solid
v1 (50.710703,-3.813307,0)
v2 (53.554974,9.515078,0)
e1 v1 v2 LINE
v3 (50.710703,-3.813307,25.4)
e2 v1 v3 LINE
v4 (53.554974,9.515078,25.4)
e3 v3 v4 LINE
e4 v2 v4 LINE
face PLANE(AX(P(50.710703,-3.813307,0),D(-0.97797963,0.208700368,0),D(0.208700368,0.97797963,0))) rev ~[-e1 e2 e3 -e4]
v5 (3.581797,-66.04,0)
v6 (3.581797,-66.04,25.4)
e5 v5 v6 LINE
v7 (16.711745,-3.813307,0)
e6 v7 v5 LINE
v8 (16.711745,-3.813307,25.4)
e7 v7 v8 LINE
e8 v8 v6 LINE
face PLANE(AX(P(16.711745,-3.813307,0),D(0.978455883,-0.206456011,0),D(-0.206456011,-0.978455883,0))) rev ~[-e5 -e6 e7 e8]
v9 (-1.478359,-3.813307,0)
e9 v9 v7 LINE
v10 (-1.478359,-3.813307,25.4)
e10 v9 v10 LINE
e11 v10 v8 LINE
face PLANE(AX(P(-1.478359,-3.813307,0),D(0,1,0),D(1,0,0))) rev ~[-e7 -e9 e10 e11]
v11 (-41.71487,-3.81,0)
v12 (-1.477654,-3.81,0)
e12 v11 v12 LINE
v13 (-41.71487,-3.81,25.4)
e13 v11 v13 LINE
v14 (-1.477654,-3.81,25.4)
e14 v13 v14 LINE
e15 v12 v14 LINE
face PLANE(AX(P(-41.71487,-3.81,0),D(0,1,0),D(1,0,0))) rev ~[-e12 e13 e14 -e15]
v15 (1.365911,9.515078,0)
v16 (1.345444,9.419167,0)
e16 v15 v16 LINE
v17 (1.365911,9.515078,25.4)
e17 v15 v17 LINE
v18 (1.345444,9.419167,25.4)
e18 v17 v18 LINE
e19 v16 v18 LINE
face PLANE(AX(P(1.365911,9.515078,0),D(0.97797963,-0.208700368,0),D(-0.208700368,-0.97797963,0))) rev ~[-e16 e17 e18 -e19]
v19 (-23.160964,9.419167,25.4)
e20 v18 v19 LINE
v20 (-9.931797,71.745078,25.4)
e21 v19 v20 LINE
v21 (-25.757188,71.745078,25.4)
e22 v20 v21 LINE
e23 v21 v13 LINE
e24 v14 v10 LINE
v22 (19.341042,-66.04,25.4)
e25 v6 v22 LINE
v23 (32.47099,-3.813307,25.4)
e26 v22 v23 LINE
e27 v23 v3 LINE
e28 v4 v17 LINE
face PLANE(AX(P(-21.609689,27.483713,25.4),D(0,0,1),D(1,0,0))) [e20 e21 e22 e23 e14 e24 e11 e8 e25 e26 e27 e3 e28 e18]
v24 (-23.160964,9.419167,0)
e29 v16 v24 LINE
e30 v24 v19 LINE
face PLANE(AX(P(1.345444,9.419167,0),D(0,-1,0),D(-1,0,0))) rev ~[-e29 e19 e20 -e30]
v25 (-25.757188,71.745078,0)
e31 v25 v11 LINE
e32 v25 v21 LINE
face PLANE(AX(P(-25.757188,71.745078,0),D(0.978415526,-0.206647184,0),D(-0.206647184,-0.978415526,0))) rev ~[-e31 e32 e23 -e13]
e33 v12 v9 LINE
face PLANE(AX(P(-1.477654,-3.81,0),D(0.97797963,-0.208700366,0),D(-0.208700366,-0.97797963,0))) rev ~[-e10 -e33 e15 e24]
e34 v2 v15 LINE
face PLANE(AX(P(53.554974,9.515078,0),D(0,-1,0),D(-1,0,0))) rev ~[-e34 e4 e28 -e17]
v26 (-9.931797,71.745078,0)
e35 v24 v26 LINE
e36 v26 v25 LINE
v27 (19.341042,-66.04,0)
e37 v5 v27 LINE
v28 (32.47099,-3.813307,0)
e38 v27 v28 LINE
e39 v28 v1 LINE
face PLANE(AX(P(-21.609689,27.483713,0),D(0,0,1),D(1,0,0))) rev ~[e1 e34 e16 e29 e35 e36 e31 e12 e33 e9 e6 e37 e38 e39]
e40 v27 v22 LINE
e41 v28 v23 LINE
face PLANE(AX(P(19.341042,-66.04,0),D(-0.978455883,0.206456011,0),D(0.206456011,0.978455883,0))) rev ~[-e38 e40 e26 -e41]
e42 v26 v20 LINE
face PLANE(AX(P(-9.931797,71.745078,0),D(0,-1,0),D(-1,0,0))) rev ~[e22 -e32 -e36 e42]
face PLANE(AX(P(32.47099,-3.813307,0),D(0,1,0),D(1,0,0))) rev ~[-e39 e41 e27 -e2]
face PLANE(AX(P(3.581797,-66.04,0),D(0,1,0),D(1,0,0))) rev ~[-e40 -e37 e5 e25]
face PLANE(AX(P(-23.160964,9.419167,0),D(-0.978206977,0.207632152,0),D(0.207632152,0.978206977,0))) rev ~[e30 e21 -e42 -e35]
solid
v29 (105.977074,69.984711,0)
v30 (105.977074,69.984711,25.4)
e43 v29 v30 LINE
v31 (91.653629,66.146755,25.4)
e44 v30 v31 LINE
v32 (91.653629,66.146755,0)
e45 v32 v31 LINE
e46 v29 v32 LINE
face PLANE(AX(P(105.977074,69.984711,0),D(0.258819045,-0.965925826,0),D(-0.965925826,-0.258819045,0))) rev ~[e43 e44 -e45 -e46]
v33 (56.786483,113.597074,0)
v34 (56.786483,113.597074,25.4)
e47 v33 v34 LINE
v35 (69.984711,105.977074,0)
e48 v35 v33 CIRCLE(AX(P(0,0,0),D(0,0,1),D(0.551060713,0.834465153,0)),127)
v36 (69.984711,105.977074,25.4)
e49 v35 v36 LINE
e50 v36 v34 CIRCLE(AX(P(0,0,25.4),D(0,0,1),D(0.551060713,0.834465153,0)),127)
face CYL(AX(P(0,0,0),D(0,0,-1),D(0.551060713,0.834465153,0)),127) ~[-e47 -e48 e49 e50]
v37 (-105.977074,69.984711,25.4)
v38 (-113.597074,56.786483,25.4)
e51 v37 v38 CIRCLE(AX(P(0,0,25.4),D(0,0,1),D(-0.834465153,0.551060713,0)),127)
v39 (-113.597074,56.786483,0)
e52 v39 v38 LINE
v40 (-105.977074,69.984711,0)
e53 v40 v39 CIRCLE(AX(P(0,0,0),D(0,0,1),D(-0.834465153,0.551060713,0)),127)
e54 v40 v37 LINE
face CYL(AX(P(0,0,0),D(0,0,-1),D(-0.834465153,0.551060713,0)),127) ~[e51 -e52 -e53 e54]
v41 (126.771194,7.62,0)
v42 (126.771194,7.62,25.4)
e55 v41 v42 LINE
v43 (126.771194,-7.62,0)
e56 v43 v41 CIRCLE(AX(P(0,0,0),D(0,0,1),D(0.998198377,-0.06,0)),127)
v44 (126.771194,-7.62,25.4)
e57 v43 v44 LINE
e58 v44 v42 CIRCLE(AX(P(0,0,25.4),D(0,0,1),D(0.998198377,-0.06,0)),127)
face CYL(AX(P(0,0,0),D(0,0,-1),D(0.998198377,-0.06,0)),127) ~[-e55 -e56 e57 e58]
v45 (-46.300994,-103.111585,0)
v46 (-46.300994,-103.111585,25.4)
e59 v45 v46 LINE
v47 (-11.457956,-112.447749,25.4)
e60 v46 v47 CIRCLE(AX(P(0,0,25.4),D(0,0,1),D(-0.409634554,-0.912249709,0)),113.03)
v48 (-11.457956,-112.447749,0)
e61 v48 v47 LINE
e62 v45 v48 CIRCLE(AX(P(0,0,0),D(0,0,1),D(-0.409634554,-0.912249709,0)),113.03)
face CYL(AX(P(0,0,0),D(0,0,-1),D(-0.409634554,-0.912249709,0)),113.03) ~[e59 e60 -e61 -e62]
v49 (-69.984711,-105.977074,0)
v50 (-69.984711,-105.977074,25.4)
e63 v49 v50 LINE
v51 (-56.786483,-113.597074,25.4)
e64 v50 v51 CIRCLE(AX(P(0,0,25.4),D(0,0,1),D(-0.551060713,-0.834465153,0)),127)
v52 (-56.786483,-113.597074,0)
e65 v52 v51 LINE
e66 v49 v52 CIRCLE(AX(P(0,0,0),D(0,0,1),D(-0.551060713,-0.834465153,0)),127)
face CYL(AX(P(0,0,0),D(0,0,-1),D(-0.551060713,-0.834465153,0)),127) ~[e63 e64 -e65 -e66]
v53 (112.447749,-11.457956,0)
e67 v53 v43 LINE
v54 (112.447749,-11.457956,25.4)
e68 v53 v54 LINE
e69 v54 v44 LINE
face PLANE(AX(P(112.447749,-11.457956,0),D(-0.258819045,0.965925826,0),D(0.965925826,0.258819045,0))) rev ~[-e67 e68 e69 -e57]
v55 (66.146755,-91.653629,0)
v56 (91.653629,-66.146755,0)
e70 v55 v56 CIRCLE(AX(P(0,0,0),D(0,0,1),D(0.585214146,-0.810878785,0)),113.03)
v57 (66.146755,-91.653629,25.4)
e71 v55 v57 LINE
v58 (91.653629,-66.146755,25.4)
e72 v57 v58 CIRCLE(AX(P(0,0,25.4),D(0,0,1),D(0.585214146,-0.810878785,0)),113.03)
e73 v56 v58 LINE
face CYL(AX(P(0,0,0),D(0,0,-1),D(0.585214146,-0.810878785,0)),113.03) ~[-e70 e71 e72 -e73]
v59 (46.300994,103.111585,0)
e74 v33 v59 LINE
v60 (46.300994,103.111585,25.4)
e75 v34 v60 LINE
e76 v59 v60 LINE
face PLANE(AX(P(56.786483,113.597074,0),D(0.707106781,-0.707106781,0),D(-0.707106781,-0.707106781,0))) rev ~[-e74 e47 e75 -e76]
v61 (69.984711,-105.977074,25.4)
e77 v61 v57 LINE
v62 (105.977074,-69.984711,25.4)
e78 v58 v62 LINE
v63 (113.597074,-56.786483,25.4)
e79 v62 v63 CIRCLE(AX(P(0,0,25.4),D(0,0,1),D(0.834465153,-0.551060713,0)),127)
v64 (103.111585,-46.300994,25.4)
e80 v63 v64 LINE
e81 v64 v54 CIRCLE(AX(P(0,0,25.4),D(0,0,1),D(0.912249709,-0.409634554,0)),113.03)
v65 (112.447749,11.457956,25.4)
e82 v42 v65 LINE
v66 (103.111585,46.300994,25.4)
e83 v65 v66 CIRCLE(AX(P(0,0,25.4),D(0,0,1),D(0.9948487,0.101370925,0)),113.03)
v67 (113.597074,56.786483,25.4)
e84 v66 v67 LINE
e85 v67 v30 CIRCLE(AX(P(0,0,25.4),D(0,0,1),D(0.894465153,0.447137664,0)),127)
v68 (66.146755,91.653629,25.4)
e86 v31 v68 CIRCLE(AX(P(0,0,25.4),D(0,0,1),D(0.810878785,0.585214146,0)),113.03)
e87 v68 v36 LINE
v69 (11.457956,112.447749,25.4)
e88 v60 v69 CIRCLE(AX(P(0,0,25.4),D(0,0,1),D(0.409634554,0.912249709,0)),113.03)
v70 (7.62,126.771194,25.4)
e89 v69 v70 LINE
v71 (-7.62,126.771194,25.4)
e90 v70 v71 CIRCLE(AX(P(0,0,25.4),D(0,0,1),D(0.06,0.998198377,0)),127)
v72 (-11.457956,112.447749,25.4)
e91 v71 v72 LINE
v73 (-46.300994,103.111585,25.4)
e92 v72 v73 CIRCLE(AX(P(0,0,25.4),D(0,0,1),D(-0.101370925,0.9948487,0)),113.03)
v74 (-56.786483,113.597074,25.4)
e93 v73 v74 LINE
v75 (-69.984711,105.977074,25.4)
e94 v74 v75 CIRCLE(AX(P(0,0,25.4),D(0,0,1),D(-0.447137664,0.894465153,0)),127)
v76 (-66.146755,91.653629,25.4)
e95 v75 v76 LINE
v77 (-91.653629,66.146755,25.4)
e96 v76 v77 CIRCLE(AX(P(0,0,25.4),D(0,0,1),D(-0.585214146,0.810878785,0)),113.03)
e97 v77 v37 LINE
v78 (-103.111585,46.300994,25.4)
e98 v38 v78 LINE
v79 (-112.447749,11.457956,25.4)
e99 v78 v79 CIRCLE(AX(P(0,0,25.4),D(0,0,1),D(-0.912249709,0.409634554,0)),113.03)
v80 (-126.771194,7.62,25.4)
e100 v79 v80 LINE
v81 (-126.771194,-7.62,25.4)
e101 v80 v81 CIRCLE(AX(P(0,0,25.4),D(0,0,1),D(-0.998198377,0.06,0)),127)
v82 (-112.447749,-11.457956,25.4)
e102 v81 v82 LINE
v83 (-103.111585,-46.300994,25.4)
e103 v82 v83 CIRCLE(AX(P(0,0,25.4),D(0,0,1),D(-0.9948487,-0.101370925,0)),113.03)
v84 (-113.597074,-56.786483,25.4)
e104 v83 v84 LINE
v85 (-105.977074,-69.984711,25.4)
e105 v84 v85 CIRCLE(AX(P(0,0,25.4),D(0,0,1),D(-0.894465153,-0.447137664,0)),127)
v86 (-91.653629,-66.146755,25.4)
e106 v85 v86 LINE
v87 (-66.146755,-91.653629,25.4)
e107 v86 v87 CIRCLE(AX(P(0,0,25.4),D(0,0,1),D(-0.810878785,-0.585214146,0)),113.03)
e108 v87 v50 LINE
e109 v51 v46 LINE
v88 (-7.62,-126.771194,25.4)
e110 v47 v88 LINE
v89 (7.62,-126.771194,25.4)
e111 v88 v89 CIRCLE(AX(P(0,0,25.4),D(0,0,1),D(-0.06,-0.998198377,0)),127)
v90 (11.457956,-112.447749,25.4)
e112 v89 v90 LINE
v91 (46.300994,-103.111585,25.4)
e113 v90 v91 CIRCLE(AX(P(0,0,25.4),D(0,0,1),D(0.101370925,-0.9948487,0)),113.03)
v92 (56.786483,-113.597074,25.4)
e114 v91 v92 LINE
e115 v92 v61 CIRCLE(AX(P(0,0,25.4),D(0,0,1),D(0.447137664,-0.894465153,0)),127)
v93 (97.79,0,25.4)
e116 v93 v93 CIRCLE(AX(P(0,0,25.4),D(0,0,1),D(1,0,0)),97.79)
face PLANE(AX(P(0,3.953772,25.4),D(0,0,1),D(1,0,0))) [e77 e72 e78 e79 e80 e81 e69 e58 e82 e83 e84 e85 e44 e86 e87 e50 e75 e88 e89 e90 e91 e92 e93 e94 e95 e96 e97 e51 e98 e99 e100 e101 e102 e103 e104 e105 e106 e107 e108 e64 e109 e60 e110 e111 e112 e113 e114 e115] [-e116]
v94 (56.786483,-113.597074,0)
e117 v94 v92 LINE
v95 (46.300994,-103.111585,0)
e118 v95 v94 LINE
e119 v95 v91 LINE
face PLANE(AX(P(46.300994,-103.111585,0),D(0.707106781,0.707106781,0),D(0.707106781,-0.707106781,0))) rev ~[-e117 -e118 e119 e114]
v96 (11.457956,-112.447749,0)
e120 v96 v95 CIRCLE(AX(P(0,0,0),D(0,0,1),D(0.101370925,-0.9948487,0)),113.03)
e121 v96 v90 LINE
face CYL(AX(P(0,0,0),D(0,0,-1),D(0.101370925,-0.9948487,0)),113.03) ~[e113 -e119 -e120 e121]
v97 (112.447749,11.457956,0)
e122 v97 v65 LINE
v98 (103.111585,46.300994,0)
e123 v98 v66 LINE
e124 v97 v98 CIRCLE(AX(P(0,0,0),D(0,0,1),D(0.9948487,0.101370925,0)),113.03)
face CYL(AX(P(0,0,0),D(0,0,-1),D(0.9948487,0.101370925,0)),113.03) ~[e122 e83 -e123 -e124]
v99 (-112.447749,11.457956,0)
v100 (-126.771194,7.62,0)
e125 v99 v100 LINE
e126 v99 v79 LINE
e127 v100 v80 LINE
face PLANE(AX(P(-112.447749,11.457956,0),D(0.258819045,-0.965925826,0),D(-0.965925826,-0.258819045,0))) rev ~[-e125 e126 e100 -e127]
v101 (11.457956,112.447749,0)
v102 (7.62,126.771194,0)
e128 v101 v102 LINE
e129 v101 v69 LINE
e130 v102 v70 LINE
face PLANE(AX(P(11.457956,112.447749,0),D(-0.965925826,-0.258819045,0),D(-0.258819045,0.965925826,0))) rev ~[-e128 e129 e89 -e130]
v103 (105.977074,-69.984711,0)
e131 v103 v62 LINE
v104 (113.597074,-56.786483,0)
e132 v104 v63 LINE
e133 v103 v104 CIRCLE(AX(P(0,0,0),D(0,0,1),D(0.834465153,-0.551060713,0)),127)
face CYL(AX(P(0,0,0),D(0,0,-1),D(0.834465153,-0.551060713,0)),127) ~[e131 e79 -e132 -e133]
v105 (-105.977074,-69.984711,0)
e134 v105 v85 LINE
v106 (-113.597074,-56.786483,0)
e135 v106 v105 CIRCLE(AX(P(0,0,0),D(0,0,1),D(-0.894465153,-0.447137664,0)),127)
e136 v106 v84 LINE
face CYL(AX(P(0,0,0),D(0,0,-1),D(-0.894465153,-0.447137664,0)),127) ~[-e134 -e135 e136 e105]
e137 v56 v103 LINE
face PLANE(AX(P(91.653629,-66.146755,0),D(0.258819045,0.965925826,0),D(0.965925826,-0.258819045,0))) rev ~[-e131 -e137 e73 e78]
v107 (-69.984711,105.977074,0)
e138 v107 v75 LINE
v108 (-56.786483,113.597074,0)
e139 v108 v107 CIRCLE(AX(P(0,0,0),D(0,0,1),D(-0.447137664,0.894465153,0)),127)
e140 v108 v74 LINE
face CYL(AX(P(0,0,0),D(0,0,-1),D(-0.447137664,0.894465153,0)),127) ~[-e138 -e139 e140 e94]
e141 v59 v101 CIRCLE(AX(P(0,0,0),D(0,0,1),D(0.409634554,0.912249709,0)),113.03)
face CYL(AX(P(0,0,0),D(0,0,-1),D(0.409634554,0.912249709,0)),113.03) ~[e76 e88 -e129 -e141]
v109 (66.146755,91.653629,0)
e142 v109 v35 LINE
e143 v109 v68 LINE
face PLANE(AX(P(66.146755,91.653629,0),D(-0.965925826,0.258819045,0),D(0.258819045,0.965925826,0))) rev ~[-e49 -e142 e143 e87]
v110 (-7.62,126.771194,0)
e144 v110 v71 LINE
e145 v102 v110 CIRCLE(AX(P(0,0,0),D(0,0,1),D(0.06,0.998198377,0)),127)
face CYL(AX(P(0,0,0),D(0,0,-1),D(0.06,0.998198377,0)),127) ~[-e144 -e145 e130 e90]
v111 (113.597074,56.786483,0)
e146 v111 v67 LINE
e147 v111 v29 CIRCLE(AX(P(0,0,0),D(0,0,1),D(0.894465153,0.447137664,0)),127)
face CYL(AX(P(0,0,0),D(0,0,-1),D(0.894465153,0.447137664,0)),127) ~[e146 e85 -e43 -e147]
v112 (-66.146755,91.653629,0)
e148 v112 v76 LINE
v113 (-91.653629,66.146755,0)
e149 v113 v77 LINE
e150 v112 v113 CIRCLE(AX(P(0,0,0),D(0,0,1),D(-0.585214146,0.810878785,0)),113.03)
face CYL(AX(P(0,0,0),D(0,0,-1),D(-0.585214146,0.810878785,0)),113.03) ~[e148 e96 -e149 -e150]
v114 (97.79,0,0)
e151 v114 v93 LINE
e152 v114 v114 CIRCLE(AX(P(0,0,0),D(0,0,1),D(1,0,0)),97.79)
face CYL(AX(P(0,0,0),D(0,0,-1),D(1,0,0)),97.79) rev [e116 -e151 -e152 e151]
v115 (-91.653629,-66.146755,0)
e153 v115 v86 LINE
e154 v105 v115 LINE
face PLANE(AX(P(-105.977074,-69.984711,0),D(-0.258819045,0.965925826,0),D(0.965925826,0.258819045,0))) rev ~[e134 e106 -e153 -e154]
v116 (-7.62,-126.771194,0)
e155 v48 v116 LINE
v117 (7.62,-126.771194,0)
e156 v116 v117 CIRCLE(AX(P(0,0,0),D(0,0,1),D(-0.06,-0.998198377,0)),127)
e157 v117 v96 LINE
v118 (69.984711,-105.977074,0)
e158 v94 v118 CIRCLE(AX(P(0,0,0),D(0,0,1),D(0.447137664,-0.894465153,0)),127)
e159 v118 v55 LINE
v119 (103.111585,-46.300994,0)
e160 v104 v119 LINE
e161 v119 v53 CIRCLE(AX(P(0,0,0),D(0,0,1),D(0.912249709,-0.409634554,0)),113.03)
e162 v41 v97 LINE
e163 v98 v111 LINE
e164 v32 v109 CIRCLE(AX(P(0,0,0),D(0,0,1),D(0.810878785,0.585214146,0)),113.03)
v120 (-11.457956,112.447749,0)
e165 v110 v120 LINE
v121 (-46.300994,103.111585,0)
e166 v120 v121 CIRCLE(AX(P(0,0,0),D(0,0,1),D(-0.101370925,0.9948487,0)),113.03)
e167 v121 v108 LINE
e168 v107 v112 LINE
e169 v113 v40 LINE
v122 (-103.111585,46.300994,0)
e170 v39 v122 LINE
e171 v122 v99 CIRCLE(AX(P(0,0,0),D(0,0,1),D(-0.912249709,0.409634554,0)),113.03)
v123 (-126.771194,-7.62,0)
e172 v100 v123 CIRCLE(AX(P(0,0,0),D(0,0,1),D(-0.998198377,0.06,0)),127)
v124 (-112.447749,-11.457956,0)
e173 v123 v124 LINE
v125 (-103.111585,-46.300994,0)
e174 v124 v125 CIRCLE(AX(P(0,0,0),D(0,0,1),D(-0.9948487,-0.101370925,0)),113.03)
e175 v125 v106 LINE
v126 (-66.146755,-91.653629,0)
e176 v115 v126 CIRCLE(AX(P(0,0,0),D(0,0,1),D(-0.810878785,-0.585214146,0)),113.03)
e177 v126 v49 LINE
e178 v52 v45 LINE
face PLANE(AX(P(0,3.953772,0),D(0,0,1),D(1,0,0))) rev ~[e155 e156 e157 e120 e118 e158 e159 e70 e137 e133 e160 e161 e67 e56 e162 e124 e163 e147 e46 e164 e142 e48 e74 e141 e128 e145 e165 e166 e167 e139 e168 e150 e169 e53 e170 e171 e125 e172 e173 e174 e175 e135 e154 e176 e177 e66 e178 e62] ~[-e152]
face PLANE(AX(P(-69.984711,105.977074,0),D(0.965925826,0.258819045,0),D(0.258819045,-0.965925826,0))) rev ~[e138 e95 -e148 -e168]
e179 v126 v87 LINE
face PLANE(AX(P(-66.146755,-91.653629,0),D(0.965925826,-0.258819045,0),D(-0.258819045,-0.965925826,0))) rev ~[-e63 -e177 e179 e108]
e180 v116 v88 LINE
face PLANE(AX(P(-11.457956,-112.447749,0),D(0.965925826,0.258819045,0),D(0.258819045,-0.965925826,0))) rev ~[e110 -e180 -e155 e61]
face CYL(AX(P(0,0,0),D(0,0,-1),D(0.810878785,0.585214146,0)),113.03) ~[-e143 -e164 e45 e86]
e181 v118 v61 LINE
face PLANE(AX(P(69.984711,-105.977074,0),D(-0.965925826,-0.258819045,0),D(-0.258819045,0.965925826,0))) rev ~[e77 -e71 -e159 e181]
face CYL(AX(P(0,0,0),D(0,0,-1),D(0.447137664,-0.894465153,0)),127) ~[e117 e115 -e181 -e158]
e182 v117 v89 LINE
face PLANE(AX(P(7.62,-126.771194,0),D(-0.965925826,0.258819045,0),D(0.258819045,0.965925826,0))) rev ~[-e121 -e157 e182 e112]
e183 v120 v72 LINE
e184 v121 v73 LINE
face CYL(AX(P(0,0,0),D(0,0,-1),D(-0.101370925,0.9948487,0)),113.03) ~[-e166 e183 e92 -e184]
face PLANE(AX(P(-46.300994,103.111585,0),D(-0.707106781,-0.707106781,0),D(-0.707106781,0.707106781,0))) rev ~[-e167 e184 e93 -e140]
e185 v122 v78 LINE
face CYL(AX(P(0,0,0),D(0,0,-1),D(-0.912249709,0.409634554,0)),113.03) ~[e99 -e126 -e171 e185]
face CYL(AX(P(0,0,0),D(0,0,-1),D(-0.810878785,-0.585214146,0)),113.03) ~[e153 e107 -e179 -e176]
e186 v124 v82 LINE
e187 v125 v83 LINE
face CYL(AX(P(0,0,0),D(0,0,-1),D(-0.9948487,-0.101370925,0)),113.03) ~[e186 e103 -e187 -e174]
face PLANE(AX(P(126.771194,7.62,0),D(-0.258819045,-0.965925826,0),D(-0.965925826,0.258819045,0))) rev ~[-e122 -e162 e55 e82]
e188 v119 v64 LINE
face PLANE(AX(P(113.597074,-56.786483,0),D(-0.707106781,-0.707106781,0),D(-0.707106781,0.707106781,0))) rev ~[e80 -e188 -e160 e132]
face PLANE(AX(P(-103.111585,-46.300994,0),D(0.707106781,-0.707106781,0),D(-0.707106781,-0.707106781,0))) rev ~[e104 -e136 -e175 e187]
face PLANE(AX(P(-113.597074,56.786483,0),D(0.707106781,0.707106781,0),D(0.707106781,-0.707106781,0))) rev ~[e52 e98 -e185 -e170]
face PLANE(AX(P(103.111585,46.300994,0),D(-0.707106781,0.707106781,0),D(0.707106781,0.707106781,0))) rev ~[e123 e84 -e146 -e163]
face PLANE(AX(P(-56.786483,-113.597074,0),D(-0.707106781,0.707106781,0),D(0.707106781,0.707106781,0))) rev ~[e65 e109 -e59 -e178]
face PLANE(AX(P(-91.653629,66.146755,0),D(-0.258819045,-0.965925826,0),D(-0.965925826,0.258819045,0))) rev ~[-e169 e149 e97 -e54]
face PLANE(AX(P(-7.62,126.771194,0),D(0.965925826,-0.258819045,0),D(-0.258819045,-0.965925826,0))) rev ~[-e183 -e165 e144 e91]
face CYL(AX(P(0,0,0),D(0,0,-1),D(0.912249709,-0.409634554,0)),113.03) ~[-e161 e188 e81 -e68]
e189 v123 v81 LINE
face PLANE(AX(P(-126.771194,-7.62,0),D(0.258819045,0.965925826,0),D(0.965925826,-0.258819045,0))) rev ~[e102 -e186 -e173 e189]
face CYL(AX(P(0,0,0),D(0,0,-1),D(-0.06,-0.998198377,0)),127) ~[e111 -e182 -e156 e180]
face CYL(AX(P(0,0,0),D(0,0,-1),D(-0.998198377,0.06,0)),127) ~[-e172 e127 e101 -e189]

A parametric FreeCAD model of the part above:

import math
import FreeCAD as App
import Part
import Sketcher
from FreeCAD import Vector
Q = App.Units.Quantity


def add_polygon(sketch, points):
    """Adds a closed chain of lines whose ends are joined by coincident constraints."""
    first, n = sketch.GeometryCount, len(points)
    for a, b in zip(points, points[1:] + points[:1]):
        sketch.addGeometry(Part.LineSegment(App.Vector(*a, 0), App.Vector(*b, 0)), False)
    for i in range(n):
        sketch.addConstraint(Sketcher.Constraint("Coincident", first + i, 2, first + (i + 1) % n, 1))

doc = App.newDocument("Part")
body = doc.addObject("PartDesign::Body", "Body")

# Sketch on XY plane
sketch1 = body.newObject("Sketcher::SketchObject", "Sketch")
sketch1.AttachmentSupport = (doc.getObject("XY_Plane"), [""])
sketch1.MapMode = "FlatFace"
sketch1.addGeometry(Part.LineSegment(Vector(11.457956, 112.447749, 0), Vector(7.62, 126.771194, 0)), False)
sketch1.addGeometry(Part.ArcOfCircle(Part.Circle(Vector(0, 0, 0), Vector(0, 0, 1), 127), math.radians(86.560187), math.radians(93.439813)), False)
sketch1.addGeometry(Part.LineSegment(Vector(-7.62, 126.771194, 0), Vector(-11.457956, 112.447749, 0)), False)
sketch1.addGeometry(Part.ArcOfCircle(Part.Circle(Vector(0, 0, 0), Vector(0, 0, 1), 113.03), math.radians(95.81812), math.radians(114.18188)), False)
sketch1.addGeometry(Part.LineSegment(Vector(-46.300994, 103.111585, 0), Vector(-56.786483, 113.597074, 0)), False)
sketch1.addGeometry(Part.ArcOfCircle(Part.Circle(Vector(0, 0, 0), Vector(0, 0, 1), 127), math.radians(116.560187), math.radians(123.439813)), False)
sketch1.addGeometry(Part.LineSegment(Vector(-69.984711, 105.977074, 0), Vector(-66.146755, 91.653629, 0)), False)
sketch1.addGeometry(Part.ArcOfCircle(Part.Circle(Vector(0, 0, 0), Vector(0, 0, 1), 113.03), math.radians(125.81812), math.radians(144.18188)), False)
sketch1.addGeometry(Part.LineSegment(Vector(-91.653629, 66.146755, 0), Vector(-105.977074, 69.984711, 0)), False)
sketch1.addGeometry(Part.ArcOfCircle(Part.Circle(Vector(0, 0, 0), Vector(0, 0, 1), 127), math.radians(146.560187), math.radians(153.439813)), False)
sketch1.addGeometry(Part.LineSegment(Vector(-113.597074, 56.786483, 0), Vector(-103.111585, 46.300994, 0)), False)
sketch1.addGeometry(Part.ArcOfCircle(Part.Circle(Vector(0, 0, 0), Vector(0, 0, 1), 113.03), math.radians(155.81812), math.radians(174.18188)), False)
sketch1.addGeometry(Part.LineSegment(Vector(-112.447749, 11.457956, 0), Vector(-126.771194, 7.62, 0)), False)
sketch1.addGeometry(Part.ArcOfCircle(Part.Circle(Vector(0, 0, 0), Vector(0, 0, 1), 127), math.radians(176.560187), math.radians(183.439813)), False)
sketch1.addGeometry(Part.LineSegment(Vector(-126.771194, -7.62, 0), Vector(-112.447749, -11.457956, 0)), False)
sketch1.addGeometry(Part.ArcOfCircle(Part.Circle(Vector(0, 0, 0), Vector(0, 0, 1), 113.03), math.radians(-174.18188), math.radians(-155.81812)), False)
sketch1.addGeometry(Part.LineSegment(Vector(-103.111585, -46.300994, 0), Vector(-113.597074, -56.786483, 0)), False)
sketch1.addGeometry(Part.ArcOfCircle(Part.Circle(Vector(0, 0, 0), Vector(0, 0, 1), 127), math.radians(-153.439813), math.radians(-146.560187)), False)
sketch1.addGeometry(Part.LineSegment(Vector(-105.977074, -69.984711, 0), Vector(-91.653629, -66.146755, 0)), False)
sketch1.addGeometry(Part.ArcOfCircle(Part.Circle(Vector(0, 0, 0), Vector(0, 0, 1), 113.03), math.radians(-144.18188), math.radians(-125.81812)), False)
sketch1.addGeometry(Part.LineSegment(Vector(-66.146755, -91.653629, 0), Vector(-69.984711, -105.977074, 0)), False)
sketch1.addGeometry(Part.ArcOfCircle(Part.Circle(Vector(0, 0, 0), Vector(0, 0, 1), 127), math.radians(-123.439813), math.radians(-116.560187)), False)
sketch1.addGeometry(Part.LineSegment(Vector(-56.786483, -113.597074, 0), Vector(-46.300994, -103.111585, 0)), False)
sketch1.addGeometry(Part.ArcOfCircle(Part.Circle(Vector(0, 0, 0), Vector(0, 0, 1), 113.03), math.radians(-114.18188), math.radians(-95.81812)), False)
sketch1.addGeometry(Part.LineSegment(Vector(-11.457956, -112.447749, 0), Vector(-7.62, -126.771194, 0)), False)
sketch1.addGeometry(Part.ArcOfCircle(Part.Circle(Vector(0, 0, 0), Vector(0, 0, 1), 127), math.radians(-93.439813), math.radians(-86.560187)), False)
sketch1.addGeometry(Part.LineSegment(Vector(7.62, -126.771194, 0), Vector(11.457956, -112.447749, 0)), False)
sketch1.addGeometry(Part.ArcOfCircle(Part.Circle(Vector(0, 0, 0), Vector(0, 0, 1), 113.03), math.radians(-84.18188), math.radians(-65.81812)), False)
sketch1.addGeometry(Part.LineSegment(Vector(46.300994, -103.111585, 0), Vector(56.786483, -113.597074, 0)), False)
sketch1.addGeometry(Part.ArcOfCircle(Part.Circle(Vector(0, 0, 0), Vector(0, 0, 1), 127), math.radians(-63.439813), math.radians(-56.560187)), False)
sketch1.addGeometry(Part.LineSegment(Vector(69.984711, -105.977074, 0), Vector(66.146755, -91.653629, 0)), False)
sketch1.addGeometry(Part.ArcOfCircle(Part.Circle(Vector(0, 0, 0), Vector(0, 0, 1), 113.03), math.radians(-54.18188), math.radians(-35.81812)), False)
sketch1.addGeometry(Part.LineSegment(Vector(91.653629, -66.146755, 0), Vector(105.977074, -69.984711, 0)), False)
sketch1.addGeometry(Part.ArcOfCircle(Part.Circle(Vector(0, 0, 0), Vector(0, 0, 1), 127), math.radians(-33.439813), math.radians(-26.560187)), False)
sketch1.addGeometry(Part.LineSegment(Vector(113.597074, -56.786483, 0), Vector(103.111585, -46.300994, 0)), False)
sketch1.addGeometry(Part.ArcOfCircle(Part.Circle(Vector(0, 0, 0), Vector(0, 0, 1), 113.03), math.radians(-24.18188), math.radians(-5.81812)), False)
sketch1.addGeometry(Part.LineSegment(Vector(112.447749, -11.457956, 0), Vector(126.771194, -7.62, 0)), False)
sketch1.addGeometry(Part.ArcOfCircle(Part.Circle(Vector(0, 0, 0), Vector(0, 0, 1), 127), math.radians(-3.439813), math.radians(3.439813)), False)
sketch1.addGeometry(Part.LineSegment(Vector(126.771194, 7.62, 0), Vector(112.447749, 11.457956, 0)), False)
sketch1.addGeometry(Part.ArcOfCircle(Part.Circle(Vector(0, 0, 0), Vector(0, 0, 1), 113.03), math.radians(5.81812), math.radians(24.18188)), False)
sketch1.addGeometry(Part.LineSegment(Vector(103.111585, 46.300994, 0), Vector(113.597074, 56.786483, 0)), False)
sketch1.addGeometry(Part.ArcOfCircle(Part.Circle(Vector(0, 0, 0), Vector(0, 0, 1), 127), math.radians(26.560187), math.radians(33.439813)), False)
sketch1.addGeometry(Part.LineSegment(Vector(105.977074, 69.984711, 0), Vector(91.653629, 66.146755, 0)), False)
sketch1.addGeometry(Part.ArcOfCircle(Part.Circle(Vector(0, 0, 0), Vector(0, 0, 1), 113.03), math.radians(35.81812), math.radians(54.18188)), False)
sketch1.addGeometry(Part.LineSegment(Vector(66.146755, 91.653629, 0), Vector(69.984711, 105.977074, 0)), False)
sketch1.addGeometry(Part.ArcOfCircle(Part.Circle(Vector(0, 0, 0), Vector(0, 0, 1), 127), math.radians(56.560187), math.radians(63.439813)), False)
sketch1.addGeometry(Part.LineSegment(Vector(56.786483, 113.597074, 0), Vector(46.300994, 103.111585, 0)), False)
sketch1.addGeometry(Part.ArcOfCircle(Part.Circle(Vector(0, 0, 0), Vector(0, 0, 1), 113.03), math.radians(65.81812), math.radians(84.18188)), False)
sketch1.addGeometry(Part.Circle(Vector(0, 0, 0), Vector(0, 0, 1), 97.79), False)
sketch1.addConstraint(Sketcher.Constraint("Coincident", 0, 2, 1, 1))
sketch1.addConstraint(Sketcher.Constraint("Coincident", 1, 2, 2, 1))
sketch1.addConstraint(Sketcher.Constraint("Coincident", 2, 2, 3, 1))
sketch1.addConstraint(Sketcher.Constraint("Coincident", 3, 2, 4, 1))
sketch1.addConstraint(Sketcher.Constraint("Coincident", 4, 2, 5, 1))
sketch1.addConstraint(Sketcher.Constraint("Coincident", 5, 2, 6, 1))
sketch1.addConstraint(Sketcher.Constraint("Coincident", 6, 2, 7, 1))
sketch1.addConstraint(Sketcher.Constraint("Coincident", 7, 2, 8, 1))
sketch1.addConstraint(Sketcher.Constraint("Coincident", 8, 2, 9, 1))
sketch1.addConstraint(Sketcher.Constraint("Coincident", 9, 2, 10, 1))
sketch1.addConstraint(Sketcher.Constraint("Coincident", 10, 2, 11, 1))
sketch1.addConstraint(Sketcher.Constraint("Coincident", 11, 2, 12, 1))
sketch1.addConstraint(Sketcher.Constraint("Coincident", 12, 2, 13, 1))
sketch1.addConstraint(Sketcher.Constraint("Coincident", 13, 2, 14, 1))
sketch1.addConstraint(Sketcher.Constraint("Coincident", 14, 2, 15, 1))
sketch1.addConstraint(Sketcher.Constraint("Coincident", 15, 2, 16, 1))
sketch1.addConstraint(Sketcher.Constraint("Coincident", 16, 2, 17, 1))
sketch1.addConstraint(Sketcher.Constraint("Coincident", 17, 2, 18, 1))
sketch1.addConstraint(Sketcher.Constraint("Coincident", 18, 2, 19, 1))
sketch1.addConstraint(Sketcher.Constraint("Coincident", 19, 2, 20, 1))
sketch1.addConstraint(Sketcher.Constraint("Coincident", 20, 2, 21, 1))
sketch1.addConstraint(Sketcher.Constraint("Coincident", 21, 2, 22, 1))
sketch1.addConstraint(Sketcher.Constraint("Coincident", 22, 2, 23, 1))
sketch1.addConstraint(Sketcher.Constraint("Coincident", 23, 2, 24, 1))
sketch1.addConstraint(Sketcher.Constraint("Coincident", 24, 2, 25, 1))
sketch1.addConstraint(Sketcher.Constraint("Coincident", 25, 2, 26, 1))
sketch1.addConstraint(Sketcher.Constraint("Coincident", 26, 2, 27, 1))
sketch1.addConstraint(Sketcher.Constraint("Coincident", 27, 2, 28, 1))
sketch1.addConstraint(Sketcher.Constraint("Coincident", 28, 2, 29, 1))
sketch1.addConstraint(Sketcher.Constraint("Coincident", 29, 2, 30, 1))
sketch1.addConstraint(Sketcher.Constraint("Coincident", 30, 2, 31, 1))
sketch1.addConstraint(Sketcher.Constraint("Coincident", 31, 2, 32, 1))
sketch1.addConstraint(Sketcher.Constraint("Coincident", 32, 2, 33, 1))
sketch1.addConstraint(Sketcher.Constraint("Coincident", 33, 2, 34, 1))
sketch1.addConstraint(Sketcher.Constraint("Coincident", 34, 2, 35, 1))
sketch1.addConstraint(Sketcher.Constraint("Coincident", 35, 2, 36, 1))
sketch1.addConstraint(Sketcher.Constraint("Coincident", 36, 2, 37, 1))
sketch1.addConstraint(Sketcher.Constraint("Coincident", 37, 2, 38, 1))
sketch1.addConstraint(Sketcher.Constraint("Coincident", 38, 2, 39, 1))
sketch1.addConstraint(Sketcher.Constraint("Coincident", 39, 2, 40, 1))
sketch1.addConstraint(Sketcher.Constraint("Coincident", 40, 2, 41, 1))
sketch1.addConstraint(Sketcher.Constraint("Coincident", 41, 2, 42, 1))
sketch1.addConstraint(Sketcher.Constraint("Coincident", 42, 2, 43, 1))
sketch1.addConstraint(Sketcher.Constraint("Coincident", 43, 2, 44, 1))
sketch1.addConstraint(Sketcher.Constraint("Coincident", 44, 2, 45, 1))
sketch1.addConstraint(Sketcher.Constraint("Coincident", 45, 2, 46, 1))
sketch1.addConstraint(Sketcher.Constraint("Coincident", 46, 2, 47, 1))
sketch1.addConstraint(Sketcher.Constraint("Coincident", 47, 2, 0, 1))
sketch1.addConstraint(Sketcher.Constraint("Coincident", 1, 3, -1, 1))
sketch1.addConstraint(Sketcher.Constraint("Coincident", 3, 3, -1, 1))
sketch1.addConstraint(Sketcher.Constraint("Coincident", 5, 3, -1, 1))
sketch1.addConstraint(Sketcher.Constraint("Coincident", 7, 3, -1, 1))
sketch1.addConstraint(Sketcher.Constraint("Coincident", 9, 3, -1, 1))
sketch1.addConstraint(Sketcher.Constraint("Coincident", 11, 3, -1, 1))
sketch1.addConstraint(Sketcher.Constraint("Coincident", 13, 3, -1, 1))
sketch1.addConstraint(Sketcher.Constraint("Coincident", 15, 3, -1, 1))
sketch1.addConstraint(Sketcher.Constraint("Coincident", 17, 3, -1, 1))
sketch1.addConstraint(Sketcher.Constraint("Coincident", 19, 3, -1, 1))
sketch1.addConstraint(Sketcher.Constraint("Coincident", 21, 3, -1, 1))
sketch1.addConstraint(Sketcher.Constraint("Coincident", 23, 3, -1, 1))
sketch1.addConstraint(Sketcher.Constraint("Coincident", 25, 3, -1, 1))
sketch1.addConstraint(Sketcher.Constraint("Coincident", 27, 3, -1, 1))
sketch1.addConstraint(Sketcher.Constraint("Coincident", 29, 3, -1, 1))
sketch1.addConstraint(Sketcher.Constraint("Coincident", 31, 3, -1, 1))
sketch1.addConstraint(Sketcher.Constraint("Coincident", 33, 3, -1, 1))
sketch1.addConstraint(Sketcher.Constraint("Coincident", 35, 3, -1, 1))
sketch1.addConstraint(Sketcher.Constraint("Coincident", 37, 3, -1, 1))
sketch1.addConstraint(Sketcher.Constraint("Coincident", 39, 3, -1, 1))
sketch1.addConstraint(Sketcher.Constraint("Coincident", 41, 3, -1, 1))
sketch1.addConstraint(Sketcher.Constraint("Coincident", 43, 3, -1, 1))
sketch1.addConstraint(Sketcher.Constraint("Coincident", 45, 3, -1, 1))
sketch1.addConstraint(Sketcher.Constraint("Coincident", 47, 3, -1, 1))
sketch1.addConstraint(Sketcher.Constraint("Coincident", 48, 3, -1, 1))
sketch1.addConstraint(Sketcher.Constraint("Equal", 1, 5))
sketch1.addConstraint(Sketcher.Constraint("Equal", 3, 7))
sketch1.addConstraint(Sketcher.Constraint("Equal", 5, 9))
sketch1.addConstraint(Sketcher.Constraint("Equal", 7, 11))
sketch1.addConstraint(Sketcher.Constraint("Equal", 9, 13))
sketch1.addConstraint(Sketcher.Constraint("Equal", 11, 15))
sketch1.addConstraint(Sketcher.Constraint("Equal", 13, 17))
sketch1.addConstraint(Sketcher.Constraint("Equal", 15, 19))
sketch1.addConstraint(Sketcher.Constraint("Equal", 17, 21))
sketch1.addConstraint(Sketcher.Constraint("Equal", 19, 23))
sketch1.addConstraint(Sketcher.Constraint("Equal", 21, 25))
sketch1.addConstraint(Sketcher.Constraint("Equal", 23, 27))
sketch1.addConstraint(Sketcher.Constraint("Equal", 25, 29))
sketch1.addConstraint(Sketcher.Constraint("Equal", 27, 31))
sketch1.addConstraint(Sketcher.Constraint("Equal", 29, 33))
sketch1.addConstraint(Sketcher.Constraint("Equal", 31, 35))
sketch1.addConstraint(Sketcher.Constraint("Equal", 33, 37))
sketch1.addConstraint(Sketcher.Constraint("Equal", 35, 39))
sketch1.addConstraint(Sketcher.Constraint("Equal", 37, 41))
sketch1.addConstraint(Sketcher.Constraint("Equal", 39, 43))
sketch1.addConstraint(Sketcher.Constraint("Equal", 41, 45))
sketch1.addConstraint(Sketcher.Constraint("Equal", 43, 47))
sketch1.addConstraint(Sketcher.Constraint("Parallel", 0, 6))
sketch1.addConstraint(Sketcher.Constraint("Perpendicular", 2, 8))
sketch1.addConstraint(Sketcher.Constraint("Parallel", 4, 10))
sketch1.addConstraint(Sketcher.Constraint("Perpendicular", 6, 12))
sketch1.addConstraint(Sketcher.Constraint("Parallel", 8, 14))
sketch1.addConstraint(Sketcher.Constraint("Perpendicular", 10, 16))
sketch1.addConstraint(Sketcher.Constraint("Parallel", 12, 18))
sketch1.addConstraint(Sketcher.Constraint("Perpendicular", 14, 20))
sketch1.addConstraint(Sketcher.Constraint("Parallel", 16, 22))
sketch1.addConstraint(Sketcher.Constraint("Perpendicular", 18, 24))
sketch1.addConstraint(Sketcher.Constraint("Parallel", 20, 26))
sketch1.addConstraint(Sketcher.Constraint("Perpendicular", 22, 28))
sketch1.addConstraint(Sketcher.Constraint("Parallel", 24, 30))
sketch1.addConstraint(Sketcher.Constraint("Perpendicular", 26, 32))
sketch1.addConstraint(Sketcher.Constraint("Parallel", 28, 34))
sketch1.addConstraint(Sketcher.Constraint("Perpendicular", 30, 36))
sketch1.addConstraint(Sketcher.Constraint("Parallel", 32, 38))
sketch1.addConstraint(Sketcher.Constraint("Perpendicular", 34, 40))
sketch1.addConstraint(Sketcher.Constraint("Parallel", 36, 42))
sketch1.addConstraint(Sketcher.Constraint("Perpendicular", 38, 44))
sketch1.addConstraint(Sketcher.Constraint("Parallel", 40, 46))
sketch1.addConstraint(Sketcher.Constraint("Horizontal", 0, 2, 1, 2))
sketch1.addConstraint(Sketcher.Constraint("Horizontal", 24, 2, 25, 2))
sketch1.addConstraint(Sketcher.Constraint("Horizontal", 23, 2, 26, 2))
sketch1.addConstraint(Sketcher.Constraint("Horizontal", 22, 2, 27, 2))
sketch1.addConstraint(Sketcher.Constraint("Horizontal", 21, 2, 28, 2))
sketch1.addConstraint(Sketcher.Constraint("Horizontal", 20, 2, 29, 2))
sketch1.addConstraint(Sketcher.Constraint("Horizontal", 18, 2, 31, 2))
sketch1.addConstraint(Sketcher.Constraint("Horizontal", 16, 2, 33, 2))
sketch1.addConstraint(Sketcher.Constraint("Horizontal", 14, 2, 35, 2))
sketch1.addConstraint(Sketcher.Constraint("Horizontal", 12, 2, 37, 2))
sketch1.addConstraint(Sketcher.Constraint("Horizontal", 10, 2, 39, 2))
sketch1.addConstraint(Sketcher.Constraint("Horizontal", 8, 2, 41, 2))
sketch1.addConstraint(Sketcher.Constraint("Horizontal", 6, 2, 43, 2))
sketch1.addConstraint(Sketcher.Constraint("Horizontal", 4, 2, 45, 2))
sketch1.addConstraint(Sketcher.Constraint("Vertical", 12, 2, 13, 2))
sketch1.addConstraint(Sketcher.Constraint("Vertical", 10, 2, 15, 2))
sketch1.addConstraint(Sketcher.Constraint("Vertical", 8, 2, 17, 2))
sketch1.addConstraint(Sketcher.Constraint("Vertical", 6, 2, 19, 2))
sketch1.addConstraint(Sketcher.Constraint("Vertical", 4, 2, 21, 2))
sketch1.addConstraint(Sketcher.Constraint("Vertical", 2, 2, 23, 2))
sketch1.addConstraint(Sketcher.Constraint("Equal", 2, 4))
sketch1.addConstraint(Sketcher.Constraint("Equal", 4, 6))
sketch1.addConstraint(Sketcher.Constraint("Equal", 6, 8))
sketch1.addConstraint(Sketcher.Constraint("Equal", 8, 10))
sketch1.addConstraint(Sketcher.Constraint("Equal", 10, 12))
sketch1.addConstraint(Sketcher.Constraint("Radius", 1, Q("5 in")))
sketch1.addConstraint(Sketcher.Constraint("Diameter", 48, Q("7.7 in")))
sketch1.addConstraint(Sketcher.Constraint("Radius", 3, Q("4.45 in")))
sketch1.addConstraint(Sketcher.Constraint("Angle", 0, Q("105 deg")))
sketch1.addConstraint(Sketcher.Constraint("DistanceX", -1, 1, 0, 2, Q("0.3 in")))
pad1 = body.newObject("PartDesign::Pad", "Pad")
pad1.Profile = sketch1
pad1.Length = Q("1 in")
body2 = doc.addObject("PartDesign::Body", "Body001")

# Sketch on XY plane
sketch2 = body2.newObject("Sketcher::SketchObject", "Sketch001")
sketch2.AttachmentSupport = (doc.getObject("XY_Plane001"), [""])
sketch2.MapMode = "FlatFace"
add_polygon(sketch2, [(-25.757188, 71.745078), (-41.71487, -3.81), (-1.477654, -3.81), (-1.478359, -3.813307), (16.711745, -3.813307), (3.581797, -66.04), (19.341042, -66.04), (32.47099, -3.813307), (50.710703, -3.813307), (53.554974, 9.515078), (1.365911, 9.515078), (1.345444, 9.419167), (-23.160964, 9.419167), (-9.931797, 71.745078)])  # lines 0-13
sketch2.addConstraint(Sketcher.Constraint("Horizontal", 1))
sketch2.addConstraint(Sketcher.Constraint("Horizontal", 3))
sketch2.addConstraint(Sketcher.Constraint("Horizontal", 5))
sketch2.addConstraint(Sketcher.Constraint("Horizontal", 7))
sketch2.addConstraint(Sketcher.Constraint("Horizontal", 9))
sketch2.addConstraint(Sketcher.Constraint("Horizontal", 11))
sketch2.addConstraint(Sketcher.Constraint("Horizontal", 13))
sketch2.addConstraint(Sketcher.Constraint("Parallel", 4, 6))
sketch2.addConstraint(Sketcher.Constraint("Parallel", 2, 8))
sketch2.addConstraint(Sketcher.Constraint("Parallel", 8, 10))
sketch2.addConstraint(Sketcher.Constraint("Horizontal", 3, 2, 6, 2))
sketch2.addConstraint(Sketcher.Constraint("DistanceY", 4, 2, -1, 1, Q("2.6 in")))
sketch2.addConstraint(Sketcher.Constraint("DistanceY", 0, 2, -1, 1, Q("0.15 in")))
sketch2.addConstraint(Sketcher.Constraint("DistanceY", 9, 2, 12, 2, Q("2.45 in")))
sketch2.addConstraint(Sketcher.Constraint("DistanceX", 13, 2, 13, 1, Q("15.825391 mm")))
sketch2.addConstraint(Sketcher.Constraint("DistanceX", 1, 2, 3, 2, Q("18.189398 mm")))
sketch2.addConstraint(Sketcher.Constraint("DistanceX", 2, 2, 5, 2, Q("20.819401 mm")))
sketch2.addConstraint(Sketcher.Constraint("DistanceX", 10, 2, 3, 2, Q("15.366301 mm")))
sketch2.addConstraint(Sketcher.Constraint("DistanceX", 13, 2, 9, 2, Q("27.123099 mm")))
sketch2.addConstraint(Sketcher.Constraint("Distance", 0, Q("77.221872 mm")))
sketch2.addConstraint(Sketcher.Constraint("Distance", 2, Q("0.003382 mm")))
sketch2.addConstraint(Sketcher.Constraint("Distance", 4, Q("63.59683 mm")))
sketch2.addConstraint(Sketcher.Constraint("Distance", 8, Q("13.62849 mm")))
sketch2.addConstraint(Sketcher.Constraint("Distance", 10, Q("0.098071 mm")))
sketch2.addConstraint(Sketcher.Constraint("Distance", 12, Q("63.714442 mm")))
sketch2.addConstraint(Sketcher.Constraint("DistanceX", 1, 1, 1, 2, Q("40.237216 mm")))
sketch2.addConstraint(Sketcher.Constraint("DistanceX", 7, 1, 7, 2, Q("18.239714 mm")))
sketch2.addConstraint(Sketcher.Constraint("DistanceX", 0, 2, -1, 1, Q("41.71487 mm")))
pad2 = body2.newObject("PartDesign::Pad", "Pad001")
pad2.Profile = sketch2
pad2.Length = Q("1 in")

doc.recompute()
